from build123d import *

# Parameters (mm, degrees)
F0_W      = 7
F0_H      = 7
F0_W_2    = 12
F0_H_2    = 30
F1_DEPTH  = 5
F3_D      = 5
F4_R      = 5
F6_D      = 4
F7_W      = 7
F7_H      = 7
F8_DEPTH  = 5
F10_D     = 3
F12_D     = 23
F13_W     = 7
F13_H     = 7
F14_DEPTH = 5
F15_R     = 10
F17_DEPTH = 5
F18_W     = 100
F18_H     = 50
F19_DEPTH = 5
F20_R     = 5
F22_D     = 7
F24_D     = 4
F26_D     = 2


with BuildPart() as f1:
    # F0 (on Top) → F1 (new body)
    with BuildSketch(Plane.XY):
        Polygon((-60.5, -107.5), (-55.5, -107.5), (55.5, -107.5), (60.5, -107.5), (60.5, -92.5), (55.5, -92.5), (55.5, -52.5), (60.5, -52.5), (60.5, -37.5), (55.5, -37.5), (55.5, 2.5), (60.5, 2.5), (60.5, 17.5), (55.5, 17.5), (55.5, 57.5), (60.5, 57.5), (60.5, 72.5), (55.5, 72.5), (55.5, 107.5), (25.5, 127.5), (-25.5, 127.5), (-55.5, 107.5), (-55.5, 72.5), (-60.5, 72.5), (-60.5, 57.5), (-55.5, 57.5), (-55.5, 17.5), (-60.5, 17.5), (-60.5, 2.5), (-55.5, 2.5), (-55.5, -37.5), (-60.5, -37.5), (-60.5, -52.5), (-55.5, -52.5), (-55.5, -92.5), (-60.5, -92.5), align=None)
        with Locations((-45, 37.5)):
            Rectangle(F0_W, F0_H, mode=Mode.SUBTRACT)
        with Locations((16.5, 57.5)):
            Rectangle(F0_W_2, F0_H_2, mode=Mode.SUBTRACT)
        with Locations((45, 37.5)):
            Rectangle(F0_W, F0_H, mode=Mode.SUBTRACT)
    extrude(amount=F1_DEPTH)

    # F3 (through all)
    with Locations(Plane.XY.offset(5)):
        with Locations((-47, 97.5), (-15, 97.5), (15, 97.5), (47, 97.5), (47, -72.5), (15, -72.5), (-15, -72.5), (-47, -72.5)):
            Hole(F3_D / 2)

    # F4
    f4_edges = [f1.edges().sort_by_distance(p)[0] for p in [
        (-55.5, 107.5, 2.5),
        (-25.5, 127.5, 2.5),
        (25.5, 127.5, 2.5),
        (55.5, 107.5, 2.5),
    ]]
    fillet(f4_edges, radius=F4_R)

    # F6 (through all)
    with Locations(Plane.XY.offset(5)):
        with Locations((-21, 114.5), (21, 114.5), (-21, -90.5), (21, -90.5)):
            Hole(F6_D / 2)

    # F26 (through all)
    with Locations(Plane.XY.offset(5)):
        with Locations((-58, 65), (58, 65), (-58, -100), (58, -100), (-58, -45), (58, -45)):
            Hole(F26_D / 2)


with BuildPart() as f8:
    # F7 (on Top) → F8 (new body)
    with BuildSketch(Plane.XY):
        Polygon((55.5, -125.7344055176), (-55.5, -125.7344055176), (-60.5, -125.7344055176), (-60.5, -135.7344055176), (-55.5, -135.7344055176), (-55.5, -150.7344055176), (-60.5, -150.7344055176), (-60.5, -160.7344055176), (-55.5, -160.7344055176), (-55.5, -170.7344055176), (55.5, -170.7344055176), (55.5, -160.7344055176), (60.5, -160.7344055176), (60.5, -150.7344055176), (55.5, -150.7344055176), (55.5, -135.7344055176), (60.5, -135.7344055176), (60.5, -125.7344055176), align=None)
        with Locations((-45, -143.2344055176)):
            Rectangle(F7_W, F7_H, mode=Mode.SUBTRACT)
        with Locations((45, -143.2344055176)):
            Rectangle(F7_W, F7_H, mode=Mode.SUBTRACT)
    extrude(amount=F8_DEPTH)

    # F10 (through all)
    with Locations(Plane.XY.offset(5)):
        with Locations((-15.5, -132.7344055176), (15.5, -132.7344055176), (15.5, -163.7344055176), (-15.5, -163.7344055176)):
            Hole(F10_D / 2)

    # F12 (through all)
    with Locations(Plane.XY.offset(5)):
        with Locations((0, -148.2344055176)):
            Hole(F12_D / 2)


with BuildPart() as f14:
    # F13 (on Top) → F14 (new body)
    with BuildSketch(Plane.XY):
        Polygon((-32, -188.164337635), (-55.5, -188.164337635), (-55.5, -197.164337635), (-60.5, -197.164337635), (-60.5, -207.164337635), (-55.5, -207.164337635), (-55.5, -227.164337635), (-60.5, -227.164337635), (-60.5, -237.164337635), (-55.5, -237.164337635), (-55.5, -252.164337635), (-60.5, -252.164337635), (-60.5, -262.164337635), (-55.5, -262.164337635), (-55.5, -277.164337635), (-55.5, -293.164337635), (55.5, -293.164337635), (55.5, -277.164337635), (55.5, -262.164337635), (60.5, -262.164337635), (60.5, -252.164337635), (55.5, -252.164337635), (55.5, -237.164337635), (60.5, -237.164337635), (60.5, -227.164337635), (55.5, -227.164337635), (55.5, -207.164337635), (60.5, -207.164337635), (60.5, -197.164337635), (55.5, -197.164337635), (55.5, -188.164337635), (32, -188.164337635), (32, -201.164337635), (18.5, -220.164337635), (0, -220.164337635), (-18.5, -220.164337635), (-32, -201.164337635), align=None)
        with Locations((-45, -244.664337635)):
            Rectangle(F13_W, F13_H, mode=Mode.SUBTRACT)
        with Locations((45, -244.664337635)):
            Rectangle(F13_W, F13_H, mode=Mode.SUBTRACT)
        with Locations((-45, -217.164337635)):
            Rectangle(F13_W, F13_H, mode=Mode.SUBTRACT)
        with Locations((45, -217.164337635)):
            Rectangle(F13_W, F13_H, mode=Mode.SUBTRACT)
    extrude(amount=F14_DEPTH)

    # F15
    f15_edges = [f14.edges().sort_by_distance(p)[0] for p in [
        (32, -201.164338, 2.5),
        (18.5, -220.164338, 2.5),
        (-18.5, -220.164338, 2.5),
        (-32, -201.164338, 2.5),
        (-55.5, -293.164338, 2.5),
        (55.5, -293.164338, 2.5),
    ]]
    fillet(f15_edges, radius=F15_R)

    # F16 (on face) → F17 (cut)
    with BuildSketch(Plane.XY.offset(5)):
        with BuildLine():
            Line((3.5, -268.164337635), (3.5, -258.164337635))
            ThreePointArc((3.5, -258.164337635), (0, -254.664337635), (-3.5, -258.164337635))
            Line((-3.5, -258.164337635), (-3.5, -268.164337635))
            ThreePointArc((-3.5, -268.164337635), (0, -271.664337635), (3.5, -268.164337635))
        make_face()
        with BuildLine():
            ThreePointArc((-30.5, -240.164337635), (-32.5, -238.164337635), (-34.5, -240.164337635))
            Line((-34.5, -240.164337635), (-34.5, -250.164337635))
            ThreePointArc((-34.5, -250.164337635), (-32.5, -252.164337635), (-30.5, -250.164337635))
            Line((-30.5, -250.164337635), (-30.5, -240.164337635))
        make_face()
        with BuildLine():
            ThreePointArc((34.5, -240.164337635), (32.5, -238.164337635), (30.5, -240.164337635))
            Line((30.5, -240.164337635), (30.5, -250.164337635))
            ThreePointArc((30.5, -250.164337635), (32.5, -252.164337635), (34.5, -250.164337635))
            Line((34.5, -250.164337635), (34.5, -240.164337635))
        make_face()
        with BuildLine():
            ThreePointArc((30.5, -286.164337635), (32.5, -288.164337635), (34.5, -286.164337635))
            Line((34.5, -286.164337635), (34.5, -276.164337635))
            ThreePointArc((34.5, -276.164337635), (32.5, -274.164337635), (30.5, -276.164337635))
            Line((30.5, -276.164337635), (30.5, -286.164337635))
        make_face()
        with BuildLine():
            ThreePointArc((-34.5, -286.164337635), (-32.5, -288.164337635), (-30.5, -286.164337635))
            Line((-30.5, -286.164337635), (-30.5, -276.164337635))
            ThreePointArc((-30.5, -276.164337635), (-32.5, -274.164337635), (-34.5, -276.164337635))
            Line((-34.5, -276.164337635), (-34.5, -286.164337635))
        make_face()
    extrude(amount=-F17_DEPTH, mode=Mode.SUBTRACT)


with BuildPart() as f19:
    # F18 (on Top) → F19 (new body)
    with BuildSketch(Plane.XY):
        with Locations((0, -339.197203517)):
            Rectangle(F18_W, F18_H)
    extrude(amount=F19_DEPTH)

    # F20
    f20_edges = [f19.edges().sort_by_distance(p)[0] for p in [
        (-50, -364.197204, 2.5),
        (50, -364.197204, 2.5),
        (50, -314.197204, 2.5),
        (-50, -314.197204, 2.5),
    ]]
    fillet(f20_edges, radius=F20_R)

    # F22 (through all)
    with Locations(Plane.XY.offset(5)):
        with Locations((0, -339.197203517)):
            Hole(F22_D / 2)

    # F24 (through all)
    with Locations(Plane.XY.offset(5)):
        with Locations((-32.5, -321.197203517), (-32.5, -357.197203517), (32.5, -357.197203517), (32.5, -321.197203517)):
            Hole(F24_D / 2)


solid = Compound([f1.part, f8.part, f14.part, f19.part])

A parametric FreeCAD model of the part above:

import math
import FreeCAD as App
import Part
import Sketcher

V = App.Vector


def edges_at(feature, points):
    """Names of the edges that pass closest to the given points."""
    edges = feature.Shape.Edges
    near = lambda p: min(range(len(edges)), key=lambda i: edges[i].distToShape(Part.Vertex(*p))[0])
    return sorted({f"Edge{near(p) + 1}" for p in points})


def add_polygon(sketch, points):
    """Adds a closed chain of lines whose ends are joined by coincident constraints."""
    first, n = sketch.GeometryCount, len(points)
    for a, b in zip(points, points[1:] + points[:1]):
        sketch.addGeometry(Part.LineSegment(App.Vector(*a, 0), App.Vector(*b, 0)), False)
    for i in range(n):
        sketch.addConstraint(Sketcher.Constraint("Coincident", first + i, 2, first + (i + 1) % n, 1))

doc = App.newDocument("Part")
body = doc.addObject("PartDesign::Body", "Body")

# Sketch on XY plane
sketch1 = doc.addObject("Sketcher::SketchObject", "Sketch")
body.addObject(sketch1)
sketch1.AttachmentSupport = (doc.XY_Plane, [""])
sketch1.MapMode = "FlatFace"
add_polygon(sketch1, [(-60.5, -107.5), (60.5, -107.5), (60.5, -92.5), (55.5, -92.5), (55.5, -52.5), (60.5, -52.5), (60.5, -37.5), (55.5, -37.5), (55.5, 2.5), (60.5, 2.5), (60.5, 17.5), (55.5, 17.5), (55.5, 57.5), (60.5, 57.5), (60.5, 72.5), (55.5, 72.5), (55.5, 107.5), (25.5, 127.5), (-25.5, 127.5), (-55.5, 107.5), (-55.5, 72.5), (-60.5, 72.5), (-60.5, 57.5), (-55.5, 57.5), (-55.5, 17.5), (-60.5, 17.5), (-60.5, 2.5), (-55.5, 2.5), (-55.5, -37.5), (-60.5, -37.5), (-60.5, -52.5), (-55.5, -52.5), (-55.5, -92.5), (-60.5, -92.5)])  # lines 0-33
add_polygon(sketch1, [(-41.5, 34), (-48.5, 34), (-48.5, 41), (-41.5, 41)])  # lines 34-37
add_polygon(sketch1, [(48.5, 34), (41.5, 34), (41.5, 41), (48.5, 41)])  # lines 38-41
add_polygon(sketch1, [(22.5, 42.5), (10.5, 42.5), (10.5, 72.5), (22.5, 72.5)])  # lines 42-45
sketch1.addConstraint(Sketcher.Constraint("Horizontal", 0))
sketch1.addConstraint(Sketcher.Constraint("Vertical", 1))
sketch1.addConstraint(Sketcher.Constraint("Horizontal", 2))
sketch1.addConstraint(Sketcher.Constraint("Vertical", 3))
sketch1.addConstraint(Sketcher.Constraint("Horizontal", 4))
sketch1.addConstraint(Sketcher.Constraint("Vertical", 5))
sketch1.addConstraint(Sketcher.Constraint("Horizontal", 6))
sketch1.addConstraint(Sketcher.Constraint("Vertical", 7))
sketch1.addConstraint(Sketcher.Constraint("Horizontal", 8))
sketch1.addConstraint(Sketcher.Constraint("Vertical", 9))
sketch1.addConstraint(Sketcher.Constraint("Horizontal", 10))
sketch1.addConstraint(Sketcher.Constraint("Vertical", 11))
sketch1.addConstraint(Sketcher.Constraint("Horizontal", 12))
sketch1.addConstraint(Sketcher.Constraint("Vertical", 13))
sketch1.addConstraint(Sketcher.Constraint("Horizontal", 14))
sketch1.addConstraint(Sketcher.Constraint("Vertical", 15))
sketch1.addConstraint(Sketcher.Constraint("Horizontal", 17))
sketch1.addConstraint(Sketcher.Constraint("Vertical", 19))
sketch1.addConstraint(Sketcher.Constraint("Horizontal", 20))
sketch1.addConstraint(Sketcher.Constraint("Vertical", 21))
sketch1.addConstraint(Sketcher.Constraint("Horizontal", 22))
sketch1.addConstraint(Sketcher.Constraint("Vertical", 23))
sketch1.addConstraint(Sketcher.Constraint("Horizontal", 24))
sketch1.addConstraint(Sketcher.Constraint("Vertical", 25))
sketch1.addConstraint(Sketcher.Constraint("Horizontal", 26))
sketch1.addConstraint(Sketcher.Constraint("Vertical", 27))
sketch1.addConstraint(Sketcher.Constraint("Horizontal", 28))
sketch1.addConstraint(Sketcher.Constraint("Vertical", 29))
sketch1.addConstraint(Sketcher.Constraint("Horizontal", 30))
sketch1.addConstraint(Sketcher.Constraint("Vertical", 31))
sketch1.addConstraint(Sketcher.Constraint("Horizontal", 32))
sketch1.addConstraint(Sketcher.Constraint("Vertical", 33))
sketch1.addConstraint(Sketcher.Constraint("Horizontal", 34))
sketch1.addConstraint(Sketcher.Constraint("Vertical", 35))
sketch1.addConstraint(Sketcher.Constraint("Horizontal", 36))
sketch1.addConstraint(Sketcher.Constraint("Vertical", 37))
sketch1.addConstraint(Sketcher.Constraint("Horizontal", 38))
sketch1.addConstraint(Sketcher.Constraint("Vertical", 39))
sketch1.addConstraint(Sketcher.Constraint("Horizontal", 40))
sketch1.addConstraint(Sketcher.Constraint("Vertical", 41))
sketch1.addConstraint(Sketcher.Constraint("Horizontal", 42))
sketch1.addConstraint(Sketcher.Constraint("Vertical", 43))
sketch1.addConstraint(Sketcher.Constraint("Horizontal", 44))
sketch1.addConstraint(Sketcher.Constraint("Vertical", 45))
sketch1.addConstraint(Sketcher.Constraint("Symmetric", 15, 2, 18, 2, -2))
sketch1.addConstraint(Sketcher.Constraint("Symmetric", 13, 2, 20, 2, -2))
sketch1.addConstraint(Sketcher.Constraint("Symmetric", 11, 2, 22, 2, -2))
sketch1.addConstraint(Sketcher.Constraint("Symmetric", 9, 2, 24, 2, -2))
sketch1.addConstraint(Sketcher.Constraint("Symmetric", 7, 2, 26, 2, -2))
sketch1.addConstraint(Sketcher.Constraint("Symmetric", 5, 2, 28, 2, -2))
sketch1.addConstraint(Sketcher.Constraint("Symmetric", 3, 2, 30, 2, -2))
sketch1.addConstraint(Sketcher.Constraint("Symmetric", 1, 2, 32, 2, -2))
sketch1.addConstraint(Sketcher.Constraint("Symmetric", 37, 2, 38, 2, -2))
sketch1.addConstraint(Sketcher.Constraint("Symmetric", 35, 2, 40, 2, -2))
sketch1.addConstraint(Sketcher.Constraint("Horizontal", 20, 2, 43, 2))
sketch1.addConstraint(Sketcher.Constraint("Vertical", 1, 2, 4, 2))
sketch1.addConstraint(Sketcher.Constraint("Vertical", 3, 2, 6, 2))
sketch1.addConstraint(Sketcher.Constraint("Vertical", 5, 2, 8, 2))
sketch1.addConstraint(Sketcher.Constraint("Vertical", 7, 2, 10, 2))
sketch1.addConstraint(Sketcher.Constraint("Vertical", 9, 2, 12, 2))
sketch1.addConstraint(Sketcher.Constraint("Vertical", 11, 2, 14, 2))
sketch1.addConstraint(Sketcher.Constraint("Equal", 1, 5))
sketch1.addConstraint(Sketcher.Constraint("Equal", 3, 7))
sketch1.addConstraint(Sketcher.Constraint("Equal", 5, 9))
sketch1.addConstraint(Sketcher.Constraint("Equal", 7, 11))
sketch1.addConstraint(Sketcher.Constraint("Equal", 9, 13))
sketch1.addConstraint(Sketcher.Constraint("Equal", 40, 35))
sketch1.addConstraint(Sketcher.Constraint("Equal", 16, 18))
sketch1.addConstraint(Sketcher.Constraint("DistanceX", 0, 1, 0, 2, 121.0))
sketch1.addConstraint(Sketcher.Constraint("DistanceX", 2, 2, 2, 1, 5.0))
sketch1.addConstraint(Sketcher.Constraint("DistanceX", 17, 2, 17, 1, 51.0))
sketch1.addConstraint(Sketcher.Constraint("DistanceX", 34, 2, 34, 1, 7.0))
sketch1.addConstraint(Sketcher.Constraint("DistanceX", 42, 2, 42, 1, 12.0))
sketch1.addConstraint(Sketcher.Constraint("DistanceY", 1, 1, 1, 2, 15.0))
sketch1.addConstraint(Sketcher.Constraint("DistanceY", 3, 1, 3, 2, 40.0))
sketch1.addConstraint(Sketcher.Constraint("DistanceY", 15, 1, 15, 2, 35.0))
sketch1.addConstraint(Sketcher.Constraint("DistanceY", 43, 1, 43, 2, 30.0))
sketch1.addConstraint(Sketcher.Constraint("DistanceY", -1, 1, 34, 2, 34.0))
sketch1.addConstraint(Sketcher.Constraint("DistanceY", 15, 2, 16, 2, 20.0))
sketch1.addConstraint(Sketcher.Constraint("DistanceX", 23, 2, 34, 2, 7.0))
sketch1.addConstraint(Sketcher.Constraint("DistanceX", 42, 2, 39, 2, 31.0))
sketch1.addConstraint(Sketcher.Constraint("DistanceY", 0, 2, -1, 1, 107.5))
pad1 = doc.addObject("PartDesign::Pad", "Pad")
body.addObject(pad1)
pad1.Profile = sketch1
pad1.Length = 5

# Sketch on XY plane
sketch2 = doc.addObject("Sketcher::SketchObject", "Sketch001")
body.addObject(sketch2)
sketch2.AttachmentSupport = (doc.XY_Plane, [""])
sketch2.MapMode = "FlatFace"
sketch2.AttachmentOffset = App.Placement(V(0, 0, 5), App.Rotation())
sketch2.addGeometry(Part.Circle(V(-47, 97.5, 0), V(0, 0, 1), 2.5), False)
sketch2.addGeometry(Part.Circle(V(-15, 97.5, 0), V(0, 0, 1), 2.5), False)
sketch2.addGeometry(Part.Circle(V(15, 97.5, 0), V(0, 0, 1), 2.5), False)
sketch2.addGeometry(Part.Circle(V(47, 97.5, 0), V(0, 0, 1), 2.5), False)
sketch2.addGeometry(Part.Circle(V(47, -72.5, 0), V(0, 0, 1), 2.5), False)
sketch2.addGeometry(Part.Circle(V(15, -72.5, 0), V(0, 0, 1), 2.5), False)
sketch2.addGeometry(Part.Circle(V(-15, -72.5, 0), V(0, 0, 1), 2.5), False)
sketch2.addGeometry(Part.Circle(V(-47, -72.5, 0), V(0, 0, 1), 2.5), False)
sketch2.addConstraint(Sketcher.Constraint("Equal", 0, 1))
sketch2.addConstraint(Sketcher.Constraint("Equal", 1, 2))
sketch2.addConstraint(Sketcher.Constraint("Equal", 2, 3))
sketch2.addConstraint(Sketcher.Constraint("Equal", 3, 4))
sketch2.addConstraint(Sketcher.Constraint("Equal", 4, 5))
sketch2.addConstraint(Sketcher.Constraint("Equal", 5, 6))
sketch2.addConstraint(Sketcher.Constraint("Equal", 6, 7))
sketch2.addConstraint(Sketcher.Constraint("Symmetric", 1, 3, 2, 3, -2))
sketch2.addConstraint(Sketcher.Constraint("Symmetric", 0, 3, 3, 3, -2))
sketch2.addConstraint(Sketcher.Constraint("Symmetric", 5, 3, 6, 3, -2))
sketch2.addConstraint(Sketcher.Constraint("Symmetric", 4, 3, 7, 3, -2))
sketch2.addConstraint(Sketcher.Constraint("Horizontal", 0, 3, 1, 3))
sketch2.addConstraint(Sketcher.Constraint("Horizontal", 4, 3, 5, 3))
sketch2.addConstraint(Sketcher.Constraint("Vertical", 3, 3, 4, 3))
sketch2.addConstraint(Sketcher.Constraint("Vertical", 2, 3, 5, 3))
sketch2.addConstraint(Sketcher.Constraint("Diameter", 0, 5.0))
sketch2.addConstraint(Sketcher.Constraint("DistanceX", 0, 3, -1, 1, 47.0))
sketch2.addConstraint(Sketcher.Constraint("DistanceX", 1, 3, -1, 1, 15.0))
sketch2.addConstraint(Sketcher.Constraint("DistanceY", 4, 3, 3, 3, 170.0))
sketch2.addConstraint(Sketcher.Constraint("DistanceY", -1, 1, 0, 3, 97.5))
doc.recompute()
hole = doc.addObject("PartDesign::Hole", "Hole")
body.addObject(hole)
hole.Profile = sketch2
hole.ThreadType = "None"
hole.Diameter = 5
hole.DepthType = "ThroughAll"
doc.recompute()

fillet = doc.addObject("PartDesign::Fillet", "Fillet")
body.addObject(fillet)
fillet.Base = (hole, edges_at(hole, [
    (-55.5, 107.5, 2.5),
    (-25.5, 127.5, 2.5),
    (25.5, 127.5, 2.5),
    (55.5, 107.5, 2.5),
]))
fillet.Radius = 5

# Sketch on XY plane
sketch3 = doc.addObject("Sketcher::SketchObject", "Sketch002")
body.addObject(sketch3)
sketch3.AttachmentSupport = (doc.XY_Plane, [""])
sketch3.MapMode = "FlatFace"
sketch3.AttachmentOffset = App.Placement(V(0, 0, 5), App.Rotation())
sketch3.addGeometry(Part.Circle(V(-21, 114.5, 0), V(0, 0, 1), 2), False)
sketch3.addGeometry(Part.Circle(V(21, 114.5, 0), V(0, 0, 1), 2), False)
sketch3.addGeometry(Part.Circle(V(-21, -90.5, 0), V(0, 0, 1), 2), False)
sketch3.addGeometry(Part.Circle(V(21, -90.5, 0), V(0, 0, 1), 2), False)
sketch3.addConstraint(Sketcher.Constraint("Equal", 0, 1))
sketch3.addConstraint(Sketcher.Constraint("Equal", 1, 2))
sketch3.addConstraint(Sketcher.Constraint("Equal", 2, 3))
sketch3.addConstraint(Sketcher.Constraint("Symmetric", 0, 3, 1, 3, -2))
sketch3.addConstraint(Sketcher.Constraint("Symmetric", 2, 3, 3, 3, -2))
sketch3.addConstraint(Sketcher.Constraint("Vertical", 0, 3, 2, 3))
sketch3.addConstraint(Sketcher.Constraint("Diameter", 0, 4.0))
sketch3.addConstraint(Sketcher.Constraint("DistanceX", 0, 3, -1, 1, 21.0))
sketch3.addConstraint(Sketcher.Constraint("DistanceY", 2, 3, 0, 3, 205.0))
sketch3.addConstraint(Sketcher.Constraint("DistanceY", -1, 1, 0, 3, 114.5))
doc.recompute()
hole2 = doc.addObject("PartDesign::Hole", "Hole001")
body.addObject(hole2)
hole2.Profile = sketch3
hole2.ThreadType = "None"
hole2.Diameter = 4
hole2.DepthType = "ThroughAll"

# Sketch on XY plane
sketch4 = doc.addObject("Sketcher::SketchObject", "Sketch003")
body.addObject(sketch4)
sketch4.AttachmentSupport = (doc.XY_Plane, [""])
sketch4.MapMode = "FlatFace"
sketch4.AttachmentOffset = App.Placement(V(0, 0, 5), App.Rotation())
sketch4.addGeometry(Part.Circle(V(-58, 65, 0), V(0, 0, 1), 1), False)
sketch4.addGeometry(Part.Circle(V(58, 65, 0), V(0, 0, 1), 1), False)
sketch4.addGeometry(Part.Circle(V(-58, -100, 0), V(0, 0, 1), 1), False)
sketch4.addGeometry(Part.Circle(V(58, -100, 0), V(0, 0, 1), 1), False)
sketch4.addGeometry(Part.Circle(V(-58, -45, 0), V(0, 0, 1), 1), False)
sketch4.addGeometry(Part.Circle(V(58, -45, 0), V(0, 0, 1), 1), False)
sketch4.addConstraint(Sketcher.Constraint("Equal", 0, 1))
sketch4.addConstraint(Sketcher.Constraint("Equal", 1, 2))
sketch4.addConstraint(Sketcher.Constraint("Equal", 2, 3))
sketch4.addConstraint(Sketcher.Constraint("Equal", 3, 4))
sketch4.addConstraint(Sketcher.Constraint("Equal", 4, 5))
sketch4.addConstraint(Sketcher.Constraint("Symmetric", 0, 3, 1, 3, -2))
sketch4.addConstraint(Sketcher.Constraint("Symmetric", 2, 3, 3, 3, -2))
sketch4.addConstraint(Sketcher.Constraint("Symmetric", 4, 3, 5, 3, -2))
sketch4.addConstraint(Sketcher.Constraint("Vertical", 0, 3, 2, 3))
sketch4.addConstraint(Sketcher.Constraint("Vertical", 2, 3, 4, 3))
sketch4.addConstraint(Sketcher.Constraint("Diameter", 0, 2.0))
sketch4.addConstraint(Sketcher.Constraint("DistanceX", 0, 3, -1, 1, 58.0))
sketch4.addConstraint(Sketcher.Constraint("DistanceY", -1, 1, 0, 3, 65.0))
sketch4.addConstraint(Sketcher.Constraint("DistanceY", 2, 3, -1, 1, 100.0))
sketch4.addConstraint(Sketcher.Constraint("DistanceY", 4, 3, -1, 1, 45.0))
doc.recompute()
hole3 = doc.addObject("PartDesign::Hole", "Hole002")
body.addObject(hole3)
hole3.Profile = sketch4
hole3.ThreadType = "None"
hole3.Diameter = 2
hole3.DepthType = "ThroughAll"
body2 = doc.addObject("PartDesign::Body", "Body001")

# Sketch on XY plane
sketch5 = doc.addObject("Sketcher::SketchObject", "Sketch004")
body2.addObject(sketch5)
sketch5.AttachmentSupport = (doc.getObject("XY_Plane001"), [""])
sketch5.MapMode = "FlatFace"
add_polygon(sketch5, [(-60.5, -125.734406), (-60.5, -135.734406), (-55.5, -135.734406), (-55.5, -150.734406), (-60.5, -150.734406), (-60.5, -160.734406), (-55.5, -160.734406), (-55.5, -170.734406), (55.5, -170.734406), (55.5, -160.734406), (60.5, -160.734406), (60.5, -150.734406), (55.5, -150.734406), (55.5, -135.734406), (60.5, -135.734406), (60.5, -125.734406)])  # lines 0-15
add_polygon(sketch5, [(-41.5, -146.734406), (-48.5, -146.734406), (-48.5, -139.734406), (-41.5, -139.734406)])  # lines 16-19
add_polygon(sketch5, [(48.5, -146.734406), (41.5, -146.734406), (41.5, -139.734406), (48.5, -139.734406)])  # lines 20-23
sketch5.addConstraint(Sketcher.Constraint("Vertical", 0))
sketch5.addConstraint(Sketcher.Constraint("Horizontal", 1))
sketch5.addConstraint(Sketcher.Constraint("Vertical", 2))
sketch5.addConstraint(Sketcher.Constraint("Horizontal", 3))
sketch5.addConstraint(Sketcher.Constraint("Vertical", 4))
sketch5.addConstraint(Sketcher.Constraint("Horizontal", 5))
sketch5.addConstraint(Sketcher.Constraint("Vertical", 6))
sketch5.addConstraint(Sketcher.Constraint("Horizontal", 7))
sketch5.addConstraint(Sketcher.Constraint("Vertical", 8))
sketch5.addConstraint(Sketcher.Constraint("Horizontal", 9))
sketch5.addConstraint(Sketcher.Constraint("Vertical", 10))
sketch5.addConstraint(Sketcher.Constraint("Horizontal", 11))
sketch5.addConstraint(Sketcher.Constraint("Vertical", 12))
sketch5.addConstraint(Sketcher.Constraint("Horizontal", 13))
sketch5.addConstraint(Sketcher.Constraint("Vertical", 14))
sketch5.addConstraint(Sketcher.Constraint("Horizontal", 15))
sketch5.addConstraint(Sketcher.Constraint("Horizontal", 16))
sketch5.addConstraint(Sketcher.Constraint("Vertical", 17))
sketch5.addConstraint(Sketcher.Constraint("Horizontal", 18))
sketch5.addConstraint(Sketcher.Constraint("Vertical", 19))
sketch5.addConstraint(Sketcher.Constraint("Horizontal", 20))
sketch5.addConstraint(Sketcher.Constraint("Vertical", 21))
sketch5.addConstraint(Sketcher.Constraint("Horizontal", 22))
sketch5.addConstraint(Sketcher.Constraint("Vertical", 23))
sketch5.addConstraint(Sketcher.Constraint("Symmetric", 5, 2, 8, 2, -2))
sketch5.addConstraint(Sketcher.Constraint("Symmetric", 3, 2, 10, 2, -2))
sketch5.addConstraint(Sketcher.Constraint("Symmetric", 1, 2, 12, 2, -2))
sketch5.addConstraint(Sketcher.Constraint("Symmetric", 19, 2, 20, 2, -2))
sketch5.addConstraint(Sketcher.Constraint("Symmetric", 17, 2, 22, 2, -2))
sketch5.addConstraint(Sketcher.Constraint("Vertical", 0, 2, 3, 2))
sketch5.addConstraint(Sketcher.Constraint("Vertical", 2, 2, 5, 2))
sketch5.addConstraint(Sketcher.Constraint("Vertical", 10, 2, 13, 2))
sketch5.addConstraint(Sketcher.Constraint("Equal", 0, 4))
sketch5.addConstraint(Sketcher.Constraint("Equal", 4, 6))
sketch5.addConstraint(Sketcher.Constraint("Equal", 22, 17))
sketch5.addConstraint(Sketcher.Constraint("DistanceX", 1, 1, 1, 2, 5.0))
sketch5.addConstraint(Sketcher.Constraint("DistanceX", 7, 1, 7, 2, 111.0))
sketch5.addConstraint(Sketcher.Constraint("DistanceX", 16, 2, 16, 1, 7.0))
sketch5.addConstraint(Sketcher.Constraint("DistanceY", 0, 2, 0, 1, 10.0))
sketch5.addConstraint(Sketcher.Constraint("DistanceY", 2, 2, 2, 1, 15.0))
sketch5.addConstraint(Sketcher.Constraint("DistanceX", 2, 2, 16, 2, 7.0))
sketch5.addConstraint(Sketcher.Constraint("DistanceY", 2, 2, 16, 2, 4.0))
sketch5.addConstraint(Sketcher.Constraint("DistanceY", 0, 2, -1, 1, 135.734406))
pad2 = doc.addObject("PartDesign::Pad", "Pad001")
body2.addObject(pad2)
pad2.Profile = sketch5
pad2.Length = 5

# Sketch on XY plane
sketch6 = doc.addObject("Sketcher::SketchObject", "Sketch005")
body2.addObject(sketch6)
sketch6.AttachmentSupport = (doc.getObject("XY_Plane001"), [""])
sketch6.MapMode = "FlatFace"
sketch6.AttachmentOffset = App.Placement(V(0, 0, 5), App.Rotation())
sketch6.addGeometry(Part.Circle(V(-15.5, -132.734406, 0), V(0, 0, 1), 1.5), False)
sketch6.addGeometry(Part.Circle(V(15.5, -132.734406, 0), V(0, 0, 1), 1.5), False)
sketch6.addGeometry(Part.Circle(V(15.5, -163.734406, 0), V(0, 0, 1), 1.5), False)
sketch6.addGeometry(Part.Circle(V(-15.5, -163.734406, 0), V(0, 0, 1), 1.5), False)
sketch6.addConstraint(Sketcher.Constraint("Equal", 0, 1))
sketch6.addConstraint(Sketcher.Constraint("Equal", 1, 2))
sketch6.addConstraint(Sketcher.Constraint("Equal", 2, 3))
sketch6.addConstraint(Sketcher.Constraint("Symmetric", 0, 3, 1, 3, -2))
sketch6.addConstraint(Sketcher.Constraint("Symmetric", 2, 3, 3, 3, -2))
sketch6.addConstraint(Sketcher.Constraint("Vertical", 1, 3, 2, 3))
sketch6.addConstraint(Sketcher.Constraint("Diameter", 0, 3.0))
sketch6.addConstraint(Sketcher.Constraint("DistanceX", 0, 3, 1, 3, 31.0))
sketch6.addConstraint(Sketcher.Constraint("DistanceY", 2, 3, 1, 3, 31.0))
sketch6.addConstraint(Sketcher.Constraint("DistanceY", 0, 3, -1, 1, 132.734406))
doc.recompute()
hole4 = doc.addObject("PartDesign::Hole", "Hole003")
body2.addObject(hole4)
hole4.Profile = sketch6
hole4.ThreadType = "None"
hole4.Diameter = 3
hole4.DepthType = "ThroughAll"

# Sketch on XY plane
sketch7 = doc.addObject("Sketcher::SketchObject", "Sketch006")
body2.addObject(sketch7)
sketch7.AttachmentSupport = (doc.getObject("XY_Plane001"), [""])
sketch7.MapMode = "FlatFace"
sketch7.AttachmentOffset = App.Placement(V(0, 0, 5), App.Rotation())
sketch7.addGeometry(Part.Circle(V(0, -148.234406, 0), V(0, 0, 1), 11.5), False)
sketch7.addConstraint(Sketcher.Constraint("PointOnObject", 0, 3, -2))
sketch7.addConstraint(Sketcher.Constraint("Diameter", 0, 23.0))
sketch7.addConstraint(Sketcher.Constraint("DistanceY", 0, 3, -1, 1, 148.234406))
doc.recompute()
hole5 = doc.addObject("PartDesign::Hole", "Hole004")
body2.addObject(hole5)
hole5.Profile = sketch7
hole5.ThreadType = "None"
hole5.Diameter = 23
hole5.DepthType = "ThroughAll"
body3 = doc.addObject("PartDesign::Body", "Body002")

# Sketch on XY plane
sketch8 = doc.addObject("Sketcher::SketchObject", "Sketch007")
body3.addObject(sketch8)
sketch8.AttachmentSupport = (doc.getObject("XY_Plane002"), [""])
sketch8.MapMode = "FlatFace"
add_polygon(sketch8, [(-32, -188.164338), (-55.5, -188.164338), (-55.5, -197.164338), (-60.5, -197.164338), (-60.5, -207.164338), (-55.5, -207.164338), (-55.5, -227.164338), (-60.5, -227.164338), (-60.5, -237.164338), (-55.5, -237.164338), (-55.5, -252.164338), (-60.5, -252.164338), (-60.5, -262.164338), (-55.5, -262.164338), (-55.5, -293.164338), (55.5, -293.164338), (55.5, -262.164338), (60.5, -262.164338), (60.5, -252.164338), (55.5, -252.164338), (55.5, -237.164338), (60.5, -237.164338), (60.5, -227.164338), (55.5, -227.164338), (55.5, -207.164338), (60.5, -207.164338), (60.5, -197.164338), (55.5, -197.164338), (55.5, -188.164338), (32, -188.164338), (32, -201.164338), (18.5, -220.164338), (-18.5, -220.164338), (-32, -201.164338)])  # lines 0-33
add_polygon(sketch8, [(-41.5, -248.164338), (-48.5, -248.164338), (-48.5, -241.164338), (-41.5, -241.164338)])  # lines 34-37
add_polygon(sketch8, [(48.5, -248.164338), (41.5, -248.164338), (41.5, -241.164338), (48.5, -241.164338)])  # lines 38-41
add_polygon(sketch8, [(-41.5, -220.664338), (-48.5, -220.664338), (-48.5, -213.664338), (-41.5, -213.664338)])  # lines 42-45
add_polygon(sketch8, [(48.5, -220.664338), (41.5, -220.664338), (41.5, -213.664338), (48.5, -213.664338)])  # lines 46-49
sketch8.addConstraint(Sketcher.Constraint("Horizontal", 0))
sketch8.addConstraint(Sketcher.Constraint("Vertical", 1))
sketch8.addConstraint(Sketcher.Constraint("Horizontal", 2))
sketch8.addConstraint(Sketcher.Constraint("Vertical", 3))
sketch8.addConstraint(Sketcher.Constraint("Horizontal", 4))
sketch8.addConstraint(Sketcher.Constraint("Vertical", 5))
sketch8.addConstraint(Sketcher.Constraint("Horizontal", 6))
sketch8.addConstraint(Sketcher.Constraint("Vertical", 7))
sketch8.addConstraint(Sketcher.Constraint("Horizontal", 8))
sketch8.addConstraint(Sketcher.Constraint("Vertical", 9))
sketch8.addConstraint(Sketcher.Constraint("Horizontal", 10))
sketch8.addConstraint(Sketcher.Constraint("Vertical", 11))
sketch8.addConstraint(Sketcher.Constraint("Horizontal", 12))
sketch8.addConstraint(Sketcher.Constraint("Vertical", 13))
sketch8.addConstraint(Sketcher.Constraint("Horizontal", 14))
sketch8.addConstraint(Sketcher.Constraint("Vertical", 15))
sketch8.addConstraint(Sketcher.Constraint("Horizontal", 16))
sketch8.addConstraint(Sketcher.Constraint("Vertical", 17))
sketch8.addConstraint(Sketcher.Constraint("Horizontal", 18))
sketch8.addConstraint(Sketcher.Constraint("Vertical", 19))
sketch8.addConstraint(Sketcher.Constraint("Horizontal", 20))
sketch8.addConstraint(Sketcher.Constraint("Vertical", 21))
sketch8.addConstraint(Sketcher.Constraint("Horizontal", 22))
sketch8.addConstraint(Sketcher.Constraint("Vertical", 23))
sketch8.addConstraint(Sketcher.Constraint("Horizontal", 24))
sketch8.addConstraint(Sketcher.Constraint("Vertical", 25))
sketch8.addConstraint(Sketcher.Constraint("Horizontal", 26))
sketch8.addConstraint(Sketcher.Constraint("Vertical", 27))
sketch8.addConstraint(Sketcher.Constraint("Horizontal", 28))
sketch8.addConstraint(Sketcher.Constraint("Vertical", 29))
sketch8.addConstraint(Sketcher.Constraint("Horizontal", 31))
sketch8.addConstraint(Sketcher.Constraint("Vertical", 33))
sketch8.addConstraint(Sketcher.Constraint("Horizontal", 34))
sketch8.addConstraint(Sketcher.Constraint("Vertical", 35))
sketch8.addConstraint(Sketcher.Constraint("Horizontal", 36))
sketch8.addConstraint(Sketcher.Constraint("Vertical", 37))
sketch8.addConstraint(Sketcher.Constraint("Horizontal", 38))
sketch8.addConstraint(Sketcher.Constraint("Vertical", 39))
sketch8.addConstraint(Sketcher.Constraint("Horizontal", 40))
sketch8.addConstraint(Sketcher.Constraint("Vertical", 41))
sketch8.addConstraint(Sketcher.Constraint("Horizontal", 42))
sketch8.addConstraint(Sketcher.Constraint("Vertical", 43))
sketch8.addConstraint(Sketcher.Constraint("Horizontal", 44))
sketch8.addConstraint(Sketcher.Constraint("Vertical", 45))
sketch8.addConstraint(Sketcher.Constraint("Horizontal", 46))
sketch8.addConstraint(Sketcher.Constraint("Vertical", 47))
sketch8.addConstraint(Sketcher.Constraint("Horizontal", 48))
sketch8.addConstraint(Sketcher.Constraint("Vertical", 49))
sketch8.addConstraint(Sketcher.Constraint("Symmetric", 12, 2, 15, 2, -2))
sketch8.addConstraint(Sketcher.Constraint("Symmetric", 10, 2, 17, 2, -2))
sketch8.addConstraint(Sketcher.Constraint("Symmetric", 8, 2, 19, 2, -2))
sketch8.addConstraint(Sketcher.Constraint("Symmetric", 6, 2, 21, 2, -2))
sketch8.addConstraint(Sketcher.Constraint("Symmetric", 4, 2, 23, 2, -2))
sketch8.addConstraint(Sketcher.Constraint("Symmetric", 2, 2, 25, 2, -2))
sketch8.addConstraint(Sketcher.Constraint("Symmetric", 0, 2, 27, 2, -2))
sketch8.addConstraint(Sketcher.Constraint("Symmetric", 29, 2, 32, 2, -2))
sketch8.addConstraint(Sketcher.Constraint("Symmetric", 37, 2, 38, 2, -2))
sketch8.addConstraint(Sketcher.Constraint("Symmetric", 35, 2, 40, 2, -2))
sketch8.addConstraint(Sketcher.Constraint("Symmetric", 45, 2, 46, 2, -2))
sketch8.addConstraint(Sketcher.Constraint("Symmetric", 43, 2, 48, 2, -2))
sketch8.addConstraint(Sketcher.Constraint("Vertical", 1, 2, 4, 2))
sketch8.addConstraint(Sketcher.Constraint("Vertical", 3, 2, 6, 2))
sketch8.addConstraint(Sketcher.Constraint("Vertical", 5, 2, 8, 2))
sketch8.addConstraint(Sketcher.Constraint("Vertical", 7, 2, 10, 2))
sketch8.addConstraint(Sketcher.Constraint("Vertical", 9, 2, 12, 2))
sketch8.addConstraint(Sketcher.Constraint("Vertical", 35, 2, 42, 2))
sketch8.addConstraint(Sketcher.Constraint("Vertical", 37, 2, 44, 2))
sketch8.addConstraint(Sketcher.Constraint("Equal", 3, 7))
sketch8.addConstraint(Sketcher.Constraint("Equal", 7, 11))
sketch8.addConstraint(Sketcher.Constraint("Equal", 48, 35))
sketch8.addConstraint(Sketcher.Constraint("Equal", 41, 43))
sketch8.addConstraint(Sketcher.Constraint("Equal", 30, 32))
sketch8.addConstraint(Sketcher.Constraint("DistanceX", 2, 2, 2, 1, 5.0))
sketch8.addConstraint(Sketcher.Constraint("DistanceX", 14, 1, 14, 2, 111.0))
sketch8.addConstraint(Sketcher.Constraint("DistanceX", 31, 2, 31, 1, 37.0))
sketch8.addConstraint(Sketcher.Constraint("DistanceX", 34, 2, 34, 1, 7.0))
sketch8.addConstraint(Sketcher.Constraint("DistanceY", 1, 2, 1, 1, 9.0))
sketch8.addConstraint(Sketcher.Constraint("DistanceY", 3, 2, 3, 1, 10.0))
sketch8.addConstraint(Sketcher.Constraint("DistanceY", 5, 2, 5, 1, 20.0))
sketch8.addConstraint(Sketcher.Constraint("DistanceY", 9, 2, 9, 1, 15.0))
sketch8.addConstraint(Sketcher.Constraint("DistanceY", 13, 2, 13, 1, 31.0))
sketch8.addConstraint(Sketcher.Constraint("DistanceY", 29, 2, 29, 1, 13.0))
sketch8.addConstraint(Sketcher.Constraint("DistanceX", 0, 2, 0, 1, 23.5))
sketch8.addConstraint(Sketcher.Constraint("DistanceY", 30, 2, 29, 2, 19.0))
sketch8.addConstraint(Sketcher.Constraint("DistanceX", 9, 2, 34, 2, 7.0))
sketch8.addConstraint(Sketcher.Constraint("DistanceY", 9, 2, 34, 2, 4.0))
sketch8.addConstraint(Sketcher.Constraint("DistanceY", 5, 2, 42, 2, 6.5))
sketch8.addConstraint(Sketcher.Constraint("DistanceY", 0, 2, -1, 1, 188.164338))
pad3 = doc.addObject("PartDesign::Pad", "Pad002")
body3.addObject(pad3)
pad3.Profile = sketch8
pad3.Length = 5
doc.recompute()

fillet2 = doc.addObject("PartDesign::Fillet", "Fillet001")
body3.addObject(fillet2)
fillet2.Base = (pad3, edges_at(pad3, [
    (32, -201.164, 2.5),
    (18.5, -220.164, 2.5),
    (-18.5, -220.164, 2.5),
    (-32, -201.164, 2.5),
    (-55.5, -293.164, 2.5),
    (55.5, -293.164, 2.5),
]))
fillet2.Radius = 10

# Sketch on XY plane
sketch9 = doc.addObject("Sketcher::SketchObject", "Sketch008")
body3.addObject(sketch9)
sketch9.AttachmentSupport = (doc.getObject("XY_Plane002"), [""])
sketch9.MapMode = "FlatFace"
sketch9.AttachmentOffset = App.Placement(V(0, 0, 5), App.Rotation())
sketch9.addGeometry(Part.LineSegment(V(3.5, -268.164338, 0), V(3.5, -258.164338, 0)), False)
sketch9.addGeometry(Part.ArcOfCircle(Part.Circle(V(0, -258.164338, 0), V(0, 0, 1), 3.5), math.radians(0), math.radians(180)), False)
sketch9.addGeometry(Part.LineSegment(V(-3.5, -258.164338, 0), V(-3.5, -268.164338, 0)), False)
sketch9.addGeometry(Part.ArcOfCircle(Part.Circle(V(0, -268.164338, 0), V(0, 0, 1), 3.5), math.radians(180), math.radians(360)), False)
sketch9.addGeometry(Part.ArcOfCircle(Part.Circle(V(-32.5, -240.164338, 0), V(0, 0, 1), 2), math.radians(0), math.radians(180)), False)
sketch9.addGeometry(Part.LineSegment(V(-34.5, -240.164338, 0), V(-34.5, -250.164338, 0)), False)
sketch9.addGeometry(Part.ArcOfCircle(Part.Circle(V(-32.5, -250.164338, 0), V(0, 0, 1), 2), math.radians(180), math.radians(360)), False)
sketch9.addGeometry(Part.LineSegment(V(-30.5, -250.164338, 0), V(-30.5, -240.164338, 0)), False)
sketch9.addGeometry(Part.ArcOfCircle(Part.Circle(V(32.5, -240.164338, 0), V(0, 0, 1), 2), math.radians(0), math.radians(180)), False)
sketch9.addGeometry(Part.LineSegment(V(30.5, -240.164338, 0), V(30.5, -250.164338, 0)), False)
sketch9.addGeometry(Part.ArcOfCircle(Part.Circle(V(32.5, -250.164338, 0), V(0, 0, 1), 2), math.radians(180), math.radians(360)), False)
sketch9.addGeometry(Part.LineSegment(V(34.5, -250.164338, 0), V(34.5, -240.164338, 0)), False)
sketch9.addGeometry(Part.ArcOfCircle(Part.Circle(V(32.5, -286.164338, 0), V(0, 0, 1), 2), math.radians(180), math.radians(360)), False)
sketch9.addGeometry(Part.LineSegment(V(34.5, -286.164338, 0), V(34.5, -276.164338, 0)), False)
sketch9.addGeometry(Part.ArcOfCircle(Part.Circle(V(32.5, -276.164338, 0), V(0, 0, 1), 2), math.radians(0), math.radians(180)), False)
sketch9.addGeometry(Part.LineSegment(V(30.5, -276.164338, 0), V(30.5, -286.164338, 0)), False)
sketch9.addGeometry(Part.ArcOfCircle(Part.Circle(V(-32.5, -286.164338, 0), V(0, 0, 1), 2), math.radians(180), math.radians(360)), False)
sketch9.addGeometry(Part.LineSegment(V(-30.5, -286.164338, 0), V(-30.5, -276.164338, 0)), False)
sketch9.addGeometry(Part.ArcOfCircle(Part.Circle(V(-32.5, -276.164338, 0), V(0, 0, 1), 2), math.radians(0), math.radians(180)), False)
sketch9.addGeometry(Part.LineSegment(V(-34.5, -276.164338, 0), V(-34.5, -286.164338, 0)), False)
sketch9.addConstraint(Sketcher.Constraint("Tangent", 0, 2, 1, 1))
sketch9.addConstraint(Sketcher.Constraint("Tangent", 1, 2, 2, 1))
sketch9.addConstraint(Sketcher.Constraint("Tangent", 2, 2, 3, 1))
sketch9.addConstraint(Sketcher.Constraint("Tangent", 3, 2, 0, 1))
sketch9.addConstraint(Sketcher.Constraint("Tangent", 4, 2, 5, 1))
sketch9.addConstraint(Sketcher.Constraint("Tangent", 5, 2, 6, 1))
sketch9.addConstraint(Sketcher.Constraint("Tangent", 6, 2, 7, 1))
sketch9.addConstraint(Sketcher.Constraint("Tangent", 7, 2, 4, 1))
sketch9.addConstraint(Sketcher.Constraint("Tangent", 8, 2, 9, 1))
sketch9.addConstraint(Sketcher.Constraint("Tangent", 9, 2, 10, 1))
sketch9.addConstraint(Sketcher.Constraint("Tangent", 10, 2, 11, 1))
sketch9.addConstraint(Sketcher.Constraint("Tangent", 11, 2, 8, 1))
sketch9.addConstraint(Sketcher.Constraint("Tangent", 12, 2, 13, 1))
sketch9.addConstraint(Sketcher.Constraint("Tangent", 13, 2, 14, 1))
sketch9.addConstraint(Sketcher.Constraint("Tangent", 14, 2, 15, 1))
sketch9.addConstraint(Sketcher.Constraint("Tangent", 15, 2, 12, 1))
sketch9.addConstraint(Sketcher.Constraint("Tangent", 16, 2, 17, 1))
sketch9.addConstraint(Sketcher.Constraint("Tangent", 17, 2, 18, 1))
sketch9.addConstraint(Sketcher.Constraint("Tangent", 18, 2, 19, 1))
sketch9.addConstraint(Sketcher.Constraint("Tangent", 19, 2, 16, 1))
sketch9.addConstraint(Sketcher.Constraint("Vertical", 0))
sketch9.addConstraint(Sketcher.Constraint("Vertical", 2))
sketch9.addConstraint(Sketcher.Constraint("Vertical", 5))
sketch9.addConstraint(Sketcher.Constraint("Vertical", 7))
sketch9.addConstraint(Sketcher.Constraint("Vertical", 9))
sketch9.addConstraint(Sketcher.Constraint("Vertical", 11))
sketch9.addConstraint(Sketcher.Constraint("Vertical", 13))
sketch9.addConstraint(Sketcher.Constraint("Vertical", 15))
sketch9.addConstraint(Sketcher.Constraint("Vertical", 17))
sketch9.addConstraint(Sketcher.Constraint("Vertical", 19))
sketch9.addConstraint(Sketcher.Constraint("Equal", 6, 8))
sketch9.addConstraint(Sketcher.Constraint("Equal", 10, 12))
sketch9.addConstraint(Sketcher.Constraint("Equal", 14, 16))
sketch9.addConstraint(Sketcher.Constraint("Symmetric", 4, 3, 8, 3, -2))
sketch9.addConstraint(Sketcher.Constraint("Symmetric", 12, 3, 16, 3, -2))
sketch9.addConstraint(Sketcher.Constraint("PointOnObject", 1, 3, -2))
sketch9.addConstraint(Sketcher.Constraint("Horizontal", 6, 3, 10, 3))
sketch9.addConstraint(Sketcher.Constraint("Horizontal", 14, 3, 18, 3))
sketch9.addConstraint(Sketcher.Constraint("Vertical", 10, 3, 12, 3))
sketch9.addConstraint(Sketcher.Constraint("Equal", 2, 5))
sketch9.addConstraint(Sketcher.Constraint("Equal", 11, 13))
sketch9.addConstraint(Sketcher.Constraint("Radius", 4, 2.0))
sketch9.addConstraint(Sketcher.Constraint("Radius", 1, 3.5))
sketch9.addConstraint(Sketcher.Constraint("DistanceY", 0, 1, 0, 2, 10.0))
sketch9.addConstraint(Sketcher.Constraint("DistanceY", 1, 3, 4, 3, 18.0))
sketch9.addConstraint(Sketcher.Constraint("DistanceX", 4, 3, 8, 3, 65.0))
sketch9.addConstraint(Sketcher.Constraint("DistanceY", 12, 3, 10, 3, 36.0))
sketch9.addConstraint(Sketcher.Constraint("DistanceY", 1, 3, -1, 1, 258.164338))
pocket1 = doc.addObject("PartDesign::Pocket", "Pocket")
body3.addObject(pocket1)
pocket1.Profile = sketch9
pocket1.Length = 5
body4 = doc.addObject("PartDesign::Body", "Body003")

# Sketch on XY plane
sketch10 = doc.addObject("Sketcher::SketchObject", "Sketch009")
body4.addObject(sketch10)
sketch10.AttachmentSupport = (doc.getObject("XY_Plane003"), [""])
sketch10.MapMode = "FlatFace"
add_polygon(sketch10, [(-50, -314.197204), (-50, -364.197204), (50, -364.197204), (50, -314.197204)])  # lines 0-3
sketch10.addConstraint(Sketcher.Constraint("Vertical", 0))
sketch10.addConstraint(Sketcher.Constraint("Horizontal", 1))
sketch10.addConstraint(Sketcher.Constraint("Vertical", 2))
sketch10.addConstraint(Sketcher.Constraint("Horizontal", 3))
sketch10.addConstraint(Sketcher.Constraint("DistanceX", 1, 1, 1, 2, 100.0))
sketch10.addConstraint(Sketcher.Constraint("DistanceY", 0, 2, 0, 1, 50.0))
sketch10.addConstraint(Sketcher.Constraint("DistanceX", 0, 2, -1, 1, 50.0))
sketch10.addConstraint(Sketcher.Constraint("DistanceY", 0, 2, -1, 1, 364.197204))
pad4 = doc.addObject("PartDesign::Pad", "Pad003")
body4.addObject(pad4)
pad4.Profile = sketch10
pad4.Length = 5
doc.recompute()

fillet3 = doc.addObject("PartDesign::Fillet", "Fillet002")
body4.addObject(fillet3)
fillet3.Base = (pad4, edges_at(pad4, [
    (-50, -364.197, 2.5),
    (50, -364.197, 2.5),
    (50, -314.197, 2.5),
    (-50, -314.197, 2.5),
]))
fillet3.Radius = 5

# Sketch on XY plane
sketch11 = doc.addObject("Sketcher::SketchObject", "Sketch010")
body4.addObject(sketch11)
sketch11.AttachmentSupport = (doc.getObject("XY_Plane003"), [""])
sketch11.MapMode = "FlatFace"
sketch11.AttachmentOffset = App.Placement(V(0, 0, 5), App.Rotation())
sketch11.addGeometry(Part.Circle(V(0, -339.197204, 0), V(0, 0, 1), 3.5), False)
sketch11.addConstraint(Sketcher.Constraint("PointOnObject", 0, 3, -2))
sketch11.addConstraint(Sketcher.Constraint("Diameter", 0, 7.0))
sketch11.addConstraint(Sketcher.Constraint("DistanceY", 0, 3, -1, 1, 339.197204))
doc.recompute()
hole6 = doc.addObject("PartDesign::Hole", "Hole005")
body4.addObject(hole6)
hole6.Profile = sketch11
hole6.ThreadType = "None"
hole6.Diameter = 7
hole6.DepthType = "ThroughAll"

# Sketch on XY plane
sketch12 = doc.addObject("Sketcher::SketchObject", "Sketch011")
body4.addObject(sketch12)
sketch12.AttachmentSupport = (doc.getObject("XY_Plane003"), [""])
sketch12.MapMode = "FlatFace"
sketch12.AttachmentOffset = App.Placement(V(0, 0, 5), App.Rotation())
sketch12.addGeometry(Part.Circle(V(-32.5, -321.197204, 0), V(0, 0, 1), 2), False)
sketch12.addGeometry(Part.Circle(V(-32.5, -357.197204, 0), V(0, 0, 1), 2), False)
sketch12.addGeometry(Part.Circle(V(32.5, -357.197204, 0), V(0, 0, 1), 2), False)
sketch12.addGeometry(Part.Circle(V(32.5, -321.197204, 0), V(0, 0, 1), 2), False)
sketch12.addConstraint(Sketcher.Constraint("Equal", 0, 1))
sketch12.addConstraint(Sketcher.Constraint("Equal", 1, 2))
sketch12.addConstraint(Sketcher.Constraint("Equal", 2, 3))
sketch12.addConstraint(Sketcher.Constraint("Symmetric", 1, 3, 2, 3, -2))
sketch12.addConstraint(Sketcher.Constraint("Symmetric", 0, 3, 3, 3, -2))
sketch12.addConstraint(Sketcher.Constraint("Vertical", 0, 3, 1, 3))
sketch12.addConstraint(Sketcher.Constraint("Diameter", 0, 4.0))
sketch12.addConstraint(Sketcher.Constraint("DistanceY", 1, 3, 0, 3, 36.0))
sketch12.addConstraint(Sketcher.Constraint("DistanceX", 1, 3, 2, 3, 65.0))
sketch12.addConstraint(Sketcher.Constraint("DistanceY", 0, 3, -1, 1, 321.197204))
doc.recompute()
hole7 = doc.addObject("PartDesign::Hole", "Hole006")
body4.addObject(hole7)
hole7.Profile = sketch12
hole7.ThreadType = "None"
hole7.Diameter = 4
hole7.DepthType = "ThroughAll"

doc.recompute()
